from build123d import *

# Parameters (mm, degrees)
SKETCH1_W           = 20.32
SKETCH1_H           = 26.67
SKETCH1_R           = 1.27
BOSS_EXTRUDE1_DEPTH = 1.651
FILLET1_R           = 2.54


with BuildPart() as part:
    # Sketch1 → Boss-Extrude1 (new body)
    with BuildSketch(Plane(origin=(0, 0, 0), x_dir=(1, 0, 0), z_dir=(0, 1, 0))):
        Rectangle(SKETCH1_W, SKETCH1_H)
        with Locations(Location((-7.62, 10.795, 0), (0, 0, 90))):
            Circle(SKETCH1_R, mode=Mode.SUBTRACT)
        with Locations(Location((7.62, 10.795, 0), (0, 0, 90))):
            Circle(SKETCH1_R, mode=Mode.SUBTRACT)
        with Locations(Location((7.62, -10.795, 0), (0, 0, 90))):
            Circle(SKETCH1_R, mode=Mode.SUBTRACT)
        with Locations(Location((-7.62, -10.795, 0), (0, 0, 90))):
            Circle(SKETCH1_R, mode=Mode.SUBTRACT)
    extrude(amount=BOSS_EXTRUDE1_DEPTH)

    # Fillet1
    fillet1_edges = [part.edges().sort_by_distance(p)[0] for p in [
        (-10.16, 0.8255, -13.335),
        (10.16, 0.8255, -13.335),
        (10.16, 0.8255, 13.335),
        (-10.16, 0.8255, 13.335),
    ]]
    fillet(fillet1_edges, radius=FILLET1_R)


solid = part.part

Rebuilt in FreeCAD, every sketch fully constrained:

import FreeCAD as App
import Part
import Sketcher

V = App.Vector
Q = App.Units.Quantity


def edges_at(feature, points):
    """Names of the edges that pass closest to the given points."""
    edges = feature.Shape.Edges
    near = lambda p: min(range(len(edges)), key=lambda i: edges[i].distToShape(Part.Vertex(*p))[0])
    return sorted({f"Edge{near(p) + 1}" for p in points})

doc = App.newDocument("Part")
body = doc.addObject("PartDesign::Body", "Body")

sketch1 = doc.addObject("Sketcher::SketchObject", "Sketch")
body.addObject(sketch1)
sketch1.AttachmentSupport = (doc.XZ_Plane, [""])
sketch1.MapMode = "FlatFace"
sketch1.addGeometry([
    Part.LineSegment(V(-10.2, -13.3, 0), V(-10.2, 13.3, 0)),
    Part.LineSegment(V(-10.2, 13.3, 0), V(10.2, 13.3, 0)),
    Part.LineSegment(V(10.2, 13.3, 0), V(10.2, -13.3, 0)),
    Part.LineSegment(V(10.2, -13.3, 0), V(-10.2, -13.3, 0)),
    Part.Circle(V(-7.6, 10.8, 0), V(0, 0, 1), 1.3),
    Part.Circle(V(7.6, 10.8, 0), V(0, 0, 1), 1.3),
    Part.Circle(V(-7.6, -10.8, 0), V(0, 0, 1), 1.3),
    Part.Circle(V(7.6, -10.8, 0), V(0, 0, 1), 1.3),
], False)
sketch1.addConstraint([
    Sketcher.Constraint("Coincident", 0, 2, 1, 1),
    Sketcher.Constraint("Coincident", 1, 2, 2, 1),
    Sketcher.Constraint("Coincident", 2, 2, 3, 1),
    Sketcher.Constraint("Coincident", 3, 2, 0, 1),
    Sketcher.Constraint("Vertical", 0),
    Sketcher.Constraint("Horizontal", 1),
    Sketcher.Constraint("Vertical", 2),
    Sketcher.Constraint("Horizontal", 3),
    Sketcher.Constraint("Equal", 4, 5),
    Sketcher.Constraint("Equal", 5, 6),
    Sketcher.Constraint("Equal", 6, 7),
    Sketcher.Constraint("Symmetric", 5, 3, 6, 3, -1, 1),
    Sketcher.Constraint("Symmetric", 4, 3, 7, 3, -1, 1),
    Sketcher.Constraint("Symmetric", 0, 2, 2, 2, -1, 1),
    Sketcher.Constraint("Symmetric", 4, 3, 5, 3, -2),
    Sketcher.Constraint("Diameter", 4, Q("0.1 in")),
    Sketcher.Constraint("DistanceX", 1, 1, 1, 2, Q("0.8 in")),
    Sketcher.Constraint("DistanceY", 0, 1, 0, 2, Q("1.05 in")),
    Sketcher.Constraint("DistanceX", 4, 3, -1, 1, Q("0.3 in")),
    Sketcher.Constraint("DistanceY", 4, 3, 0, 2, Q("0.1 in")),
])
pad1 = doc.addObject("PartDesign::Pad", "Pad")
body.addObject(pad1)
pad1.Profile = sketch1
pad1.Length = Q("0.065 in")
pad1.Reversed = True
doc.recompute()

fillet = doc.addObject("PartDesign::Fillet", "Fillet")
body.addObject(fillet)
fillet.Base = (pad1, edges_at(pad1, [
    (-10.16, 0.826, -13.335),
    (10.16, 0.826, -13.335),
    (10.16, 0.826, 13.335),
    (-10.16, 0.826, 13.335),
]))
fillet.Radius = Q("0.1 in")

doc.recompute()
